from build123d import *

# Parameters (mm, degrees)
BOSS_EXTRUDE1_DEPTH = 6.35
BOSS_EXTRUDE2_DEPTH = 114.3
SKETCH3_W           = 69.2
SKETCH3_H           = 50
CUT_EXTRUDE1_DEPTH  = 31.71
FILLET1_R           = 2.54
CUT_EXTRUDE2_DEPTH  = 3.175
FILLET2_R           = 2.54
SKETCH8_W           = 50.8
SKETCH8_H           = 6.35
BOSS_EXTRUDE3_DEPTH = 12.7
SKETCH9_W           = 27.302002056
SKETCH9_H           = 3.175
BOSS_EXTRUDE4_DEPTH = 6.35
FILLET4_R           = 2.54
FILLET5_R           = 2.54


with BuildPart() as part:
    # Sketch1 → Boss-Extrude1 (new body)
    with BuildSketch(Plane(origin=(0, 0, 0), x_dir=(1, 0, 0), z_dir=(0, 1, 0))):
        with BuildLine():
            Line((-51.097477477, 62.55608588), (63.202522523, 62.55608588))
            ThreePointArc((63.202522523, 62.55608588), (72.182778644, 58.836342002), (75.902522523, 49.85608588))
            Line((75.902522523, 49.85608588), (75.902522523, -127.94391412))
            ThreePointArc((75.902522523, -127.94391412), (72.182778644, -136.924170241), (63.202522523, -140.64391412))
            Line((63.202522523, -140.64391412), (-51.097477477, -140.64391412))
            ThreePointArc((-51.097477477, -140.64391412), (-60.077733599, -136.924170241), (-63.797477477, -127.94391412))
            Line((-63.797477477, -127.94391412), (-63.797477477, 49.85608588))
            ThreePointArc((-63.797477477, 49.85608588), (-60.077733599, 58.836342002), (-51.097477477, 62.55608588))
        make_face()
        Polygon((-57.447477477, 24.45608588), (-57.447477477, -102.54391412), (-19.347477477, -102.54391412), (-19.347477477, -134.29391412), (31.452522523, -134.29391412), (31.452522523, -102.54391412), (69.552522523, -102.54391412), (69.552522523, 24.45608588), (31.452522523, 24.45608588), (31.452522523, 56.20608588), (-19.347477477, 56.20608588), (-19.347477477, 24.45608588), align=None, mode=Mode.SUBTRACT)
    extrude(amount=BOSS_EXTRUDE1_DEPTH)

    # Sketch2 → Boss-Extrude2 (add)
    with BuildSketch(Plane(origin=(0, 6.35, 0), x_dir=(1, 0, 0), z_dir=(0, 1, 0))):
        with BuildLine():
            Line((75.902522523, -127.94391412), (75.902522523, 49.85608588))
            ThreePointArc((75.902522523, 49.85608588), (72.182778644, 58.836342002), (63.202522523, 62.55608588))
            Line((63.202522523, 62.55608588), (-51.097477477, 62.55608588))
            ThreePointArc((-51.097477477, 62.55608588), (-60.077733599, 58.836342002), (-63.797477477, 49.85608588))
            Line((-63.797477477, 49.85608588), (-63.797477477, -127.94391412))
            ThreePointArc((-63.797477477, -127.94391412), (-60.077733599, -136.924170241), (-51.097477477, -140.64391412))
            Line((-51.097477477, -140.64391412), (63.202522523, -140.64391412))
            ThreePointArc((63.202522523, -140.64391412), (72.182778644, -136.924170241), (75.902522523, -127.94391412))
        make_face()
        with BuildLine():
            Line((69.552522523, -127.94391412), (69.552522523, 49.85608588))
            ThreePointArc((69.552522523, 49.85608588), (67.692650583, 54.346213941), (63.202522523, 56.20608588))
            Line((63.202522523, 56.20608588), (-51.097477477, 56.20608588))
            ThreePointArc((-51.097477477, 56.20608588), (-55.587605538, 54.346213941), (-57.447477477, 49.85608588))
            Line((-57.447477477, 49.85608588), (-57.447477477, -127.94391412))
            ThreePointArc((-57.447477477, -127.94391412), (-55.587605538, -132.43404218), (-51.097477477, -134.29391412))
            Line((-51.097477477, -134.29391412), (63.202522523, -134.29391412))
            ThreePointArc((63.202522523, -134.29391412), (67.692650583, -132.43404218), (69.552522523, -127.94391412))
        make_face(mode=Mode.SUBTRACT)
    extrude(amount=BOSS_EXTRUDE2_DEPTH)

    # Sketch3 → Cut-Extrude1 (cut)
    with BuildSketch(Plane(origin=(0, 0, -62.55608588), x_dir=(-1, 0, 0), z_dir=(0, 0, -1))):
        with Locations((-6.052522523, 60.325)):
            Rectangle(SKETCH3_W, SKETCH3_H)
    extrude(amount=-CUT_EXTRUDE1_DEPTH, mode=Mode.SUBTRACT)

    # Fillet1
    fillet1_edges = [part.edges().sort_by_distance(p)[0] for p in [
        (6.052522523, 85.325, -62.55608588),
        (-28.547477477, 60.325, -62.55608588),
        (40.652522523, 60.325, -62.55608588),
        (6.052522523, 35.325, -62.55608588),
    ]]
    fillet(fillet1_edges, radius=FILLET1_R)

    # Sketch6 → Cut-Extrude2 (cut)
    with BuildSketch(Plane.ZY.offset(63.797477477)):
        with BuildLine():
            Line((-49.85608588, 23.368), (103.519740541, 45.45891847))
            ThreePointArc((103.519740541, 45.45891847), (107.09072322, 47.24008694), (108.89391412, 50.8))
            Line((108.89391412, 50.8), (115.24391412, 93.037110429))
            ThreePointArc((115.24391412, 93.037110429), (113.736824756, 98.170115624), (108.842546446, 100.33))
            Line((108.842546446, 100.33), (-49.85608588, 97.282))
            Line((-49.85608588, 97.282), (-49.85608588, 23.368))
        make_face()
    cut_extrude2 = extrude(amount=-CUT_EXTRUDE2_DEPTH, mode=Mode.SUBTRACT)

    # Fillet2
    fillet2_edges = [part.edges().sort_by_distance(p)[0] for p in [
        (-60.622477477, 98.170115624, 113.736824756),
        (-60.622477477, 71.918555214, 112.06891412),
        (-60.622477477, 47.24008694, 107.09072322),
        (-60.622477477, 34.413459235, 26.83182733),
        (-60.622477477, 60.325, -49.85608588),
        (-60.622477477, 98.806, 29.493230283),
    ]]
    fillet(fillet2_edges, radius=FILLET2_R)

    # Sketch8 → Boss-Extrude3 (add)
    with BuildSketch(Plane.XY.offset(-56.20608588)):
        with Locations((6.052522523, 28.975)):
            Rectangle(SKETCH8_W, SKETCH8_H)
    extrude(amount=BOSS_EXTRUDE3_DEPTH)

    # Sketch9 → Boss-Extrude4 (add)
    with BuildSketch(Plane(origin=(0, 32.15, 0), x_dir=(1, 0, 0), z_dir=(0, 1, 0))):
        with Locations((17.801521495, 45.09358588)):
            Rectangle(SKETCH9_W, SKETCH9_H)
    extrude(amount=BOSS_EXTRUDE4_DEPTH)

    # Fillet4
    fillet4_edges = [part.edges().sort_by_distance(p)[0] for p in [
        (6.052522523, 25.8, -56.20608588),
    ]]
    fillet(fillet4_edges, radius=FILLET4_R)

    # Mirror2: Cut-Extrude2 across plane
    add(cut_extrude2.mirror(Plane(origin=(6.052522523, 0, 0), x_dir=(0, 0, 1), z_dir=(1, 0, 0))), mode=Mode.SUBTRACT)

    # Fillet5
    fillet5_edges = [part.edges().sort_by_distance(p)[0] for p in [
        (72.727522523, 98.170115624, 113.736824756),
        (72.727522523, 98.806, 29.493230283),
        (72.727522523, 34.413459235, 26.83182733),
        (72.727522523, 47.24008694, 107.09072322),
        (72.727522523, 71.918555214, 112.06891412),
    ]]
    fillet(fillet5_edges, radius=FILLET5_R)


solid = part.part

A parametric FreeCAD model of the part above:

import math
import FreeCAD as App
import Part
import Sketcher

V = App.Vector
Q = App.Units.Quantity


def edges_at(feature, points):
    """Names of the edges that pass closest to the given points."""
    edges = feature.Shape.Edges
    near = lambda p: min(range(len(edges)), key=lambda i: edges[i].distToShape(Part.Vertex(*p))[0])
    return sorted({f"Edge{near(p) + 1}" for p in points})

doc = App.newDocument("Part")
body = doc.addObject("PartDesign::Body", "Body")

# Sketch on XZ plane
sketch1 = body.newObject("Sketcher::SketchObject", "Sketch")
sketch1.AttachmentSupport = (doc.getObject("XZ_Plane"), [""])
sketch1.MapMode = "FlatFace"
sketch1.addGeometry([
    Part.LineSegment(V(63.202523, -62.556086, 0), V(-51.097477, -62.556086, 0)),  # 0
    Part.ArcOfCircle(Part.Circle(V(-51.097477, -49.856086, 0), V(0, 0, 1), 12.7), math.radians(180), math.radians(270)),  # 1
    Part.LineSegment(V(-63.797477, -49.856086, 0), V(-63.797477, 127.943914, 0)),  # 2
    Part.ArcOfCircle(Part.Circle(V(-51.097477, 127.943914, 0), V(0, 0, 1), 12.7), math.radians(90), math.radians(180)),  # 3
    Part.LineSegment(V(-51.097477, 140.643914, 0), V(63.202523, 140.643914, 0)),  # 4
    Part.ArcOfCircle(Part.Circle(V(63.202523, 127.943914, 0), V(0, 0, 1), 12.7), math.radians(0), math.radians(90)),  # 5
    Part.LineSegment(V(75.902523, 127.943914, 0), V(75.902523, -49.856086, 0)),  # 6
    Part.ArcOfCircle(Part.Circle(V(63.202523, -49.856086, 0), V(0, 0, 1), 12.7), math.radians(-90), math.radians(0)),  # 7
    Part.LineSegment(V(-57.447477, -24.456086, 0), V(-19.347477, -24.456086, 0)),  # 8
    Part.LineSegment(V(-19.347477, -24.456086, 0), V(-19.347477, -56.206086, 0)),  # 9
    Part.LineSegment(V(-19.347477, -56.206086, 0), V(31.452523, -56.206086, 0)),  # 10
    Part.LineSegment(V(31.452523, -56.206086, 0), V(31.452523, -24.456086, 0)),  # 11
    Part.LineSegment(V(31.452523, -24.456086, 0), V(69.552523, -24.456086, 0)),  # 12
    Part.LineSegment(V(69.552523, -24.456086, 0), V(69.552523, 102.543914, 0)),  # 13
    Part.LineSegment(V(69.552523, 102.543914, 0), V(31.452523, 102.543914, 0)),  # 14
    Part.LineSegment(V(31.452523, 102.543914, 0), V(31.452523, 134.293914, 0)),  # 15
    Part.LineSegment(V(31.452523, 134.293914, 0), V(-19.347477, 134.293914, 0)),  # 16
    Part.LineSegment(V(-19.347477, 134.293914, 0), V(-19.347477, 102.543914, 0)),  # 17
    Part.LineSegment(V(-19.347477, 102.543914, 0), V(-57.447477, 102.543914, 0)),  # 18
    Part.LineSegment(V(-57.447477, 102.543914, 0), V(-57.447477, -24.456086, 0)),  # 19
], False)
sketch1.addConstraint([
    Sketcher.Constraint("Tangent", 0, 2, 1, 2),
    Sketcher.Constraint("Tangent", 1, 1, 2, 1),
    Sketcher.Constraint("Tangent", 2, 2, 3, 2),
    Sketcher.Constraint("Tangent", 3, 1, 4, 1),
    Sketcher.Constraint("Tangent", 4, 2, 5, 2),
    Sketcher.Constraint("Tangent", 5, 1, 6, 1),
    Sketcher.Constraint("Tangent", 6, 2, 7, 2),
    Sketcher.Constraint("Tangent", 7, 1, 0, 1),
    Sketcher.Constraint("Coincident", 8, 2, 9, 1),
    Sketcher.Constraint("Coincident", 9, 2, 10, 1),
    Sketcher.Constraint("Coincident", 10, 2, 11, 1),
    Sketcher.Constraint("Coincident", 11, 2, 12, 1),
    Sketcher.Constraint("Coincident", 12, 2, 13, 1),
    Sketcher.Constraint("Coincident", 13, 2, 14, 1),
    Sketcher.Constraint("Coincident", 14, 2, 15, 1),
    Sketcher.Constraint("Coincident", 15, 2, 16, 1),
    Sketcher.Constraint("Coincident", 16, 2, 17, 1),
    Sketcher.Constraint("Coincident", 17, 2, 18, 1),
    Sketcher.Constraint("Coincident", 18, 2, 19, 1),
    Sketcher.Constraint("Coincident", 19, 2, 8, 1),
    Sketcher.Constraint("Horizontal", 0),
    Sketcher.Constraint("Vertical", 2),
    Sketcher.Constraint("Horizontal", 4),
    Sketcher.Constraint("Vertical", 6),
    Sketcher.Constraint("Horizontal", 8),
    Sketcher.Constraint("Vertical", 9),
    Sketcher.Constraint("Horizontal", 10),
    Sketcher.Constraint("Vertical", 11),
    Sketcher.Constraint("Horizontal", 12),
    Sketcher.Constraint("Vertical", 13),
    Sketcher.Constraint("Horizontal", 14),
    Sketcher.Constraint("Vertical", 15),
    Sketcher.Constraint("Horizontal", 16),
    Sketcher.Constraint("Vertical", 17),
    Sketcher.Constraint("Horizontal", 18),
    Sketcher.Constraint("Vertical", 19),
    Sketcher.Constraint("Equal", 1, 3),
    Sketcher.Constraint("Equal", 3, 5),
    Sketcher.Constraint("Equal", 5, 7),
    Sketcher.Constraint("Horizontal", 8, 2, 11, 2),
    Sketcher.Constraint("Horizontal", 14, 2, 17, 2),
    Sketcher.Constraint("Vertical", 11, 2, 14, 2),
    Sketcher.Constraint("Vertical", 9, 2, 16, 2),
    Sketcher.Constraint("Equal", 8, 12),
    Sketcher.Constraint("Equal", 11, 15),
    Sketcher.Constraint("Radius", 1, Q("0.5 in")),
    Sketcher.Constraint("DistanceX", 10, 1, 10, 2, Q("2 in")),
    Sketcher.Constraint("DistanceY", 2, 1, 2, 2, Q("7 in")),
    Sketcher.Constraint("DistanceY", 13, 1, 13, 2, Q("5 in")),
    Sketcher.Constraint("DistanceX", 0, 2, 0, 1, Q("4.5 in")),
    Sketcher.Constraint("DistanceX", 8, 1, 8, 2, Q("1.5 in")),
    Sketcher.Constraint("DistanceY", 1, 3, 8, 2, Q("1 in")),
    Sketcher.Constraint("DistanceY", 9, 2, 9, 1, Q("1.25 in")),
    Sketcher.Constraint("DistanceX", 1, 3, 8, 2, Q("1.25 in")),
    Sketcher.Constraint("DistanceX", 1, 3, -1, 1, Q("51.097477 mm")),
    Sketcher.Constraint("DistanceY", 1, 3, -1, 1, Q("49.856086 mm")),
])
pad1 = body.newObject("PartDesign::Pad", "Pad")
pad1.Profile = sketch1
pad1.Length = Q("0.25 in")
pad1.Reversed = True

# Sketch on XZ plane
sketch2 = body.newObject("Sketcher::SketchObject", "Sketch001")
sketch2.AttachmentSupport = (doc.getObject("XZ_Plane"), [""])
sketch2.MapMode = "FlatFace"
sketch2.AttachmentOffset = App.Placement(V(0, 0, -0.25 * 25.4), App.Rotation())
sketch2.addGeometry([
    Part.LineSegment(V(75.902523, 127.943914, 0), V(75.902523, -49.856086, 0)),  # 0
    Part.ArcOfCircle(Part.Circle(V(63.202523, -49.856086, 0), V(0, 0, 1), 12.7), math.radians(-90), math.radians(0)),  # 1
    Part.LineSegment(V(63.202523, -62.556086, 0), V(-51.097477, -62.556086, 0)),  # 2
    Part.ArcOfCircle(Part.Circle(V(-51.097477, -49.856086, 0), V(0, 0, 1), 12.7), math.radians(180), math.radians(270)),  # 3
    Part.LineSegment(V(-63.797477, -49.856086, 0), V(-63.797477, 127.943914, 0)),  # 4
    Part.ArcOfCircle(Part.Circle(V(-51.097477, 127.943914, 0), V(0, 0, 1), 12.7), math.radians(90), math.radians(180)),  # 5
    Part.LineSegment(V(-51.097477, 140.643914, 0), V(63.202523, 140.643914, 0)),  # 6
    Part.ArcOfCircle(Part.Circle(V(63.202523, 127.943914, 0), V(0, 0, 1), 12.7), math.radians(0), math.radians(90)),  # 7
    Part.LineSegment(V(69.552523, -49.856086, 0), V(69.552523, 127.943914, 0)),  # 8
    Part.ArcOfCircle(Part.Circle(V(63.202523, 127.943914, 0), V(0, 0, 1), 6.35), math.radians(0), math.radians(90)),  # 9
    Part.LineSegment(V(63.202523, 134.293914, 0), V(-51.097477, 134.293914, 0)),  # 10
    Part.ArcOfCircle(Part.Circle(V(-51.097477, 127.943914, 0), V(0, 0, 1), 6.35), math.radians(90), math.radians(180)),  # 11
    Part.LineSegment(V(-57.447477, 127.943914, 0), V(-57.447477, -49.856086, 0)),  # 12
    Part.ArcOfCircle(Part.Circle(V(-51.097477, -49.856086, 0), V(0, 0, 1), 6.35), math.radians(180), math.radians(270)),  # 13
    Part.LineSegment(V(-51.097477, -56.206086, 0), V(63.202523, -56.206086, 0)),  # 14
    Part.ArcOfCircle(Part.Circle(V(63.202523, -49.856086, 0), V(0, 0, 1), 6.35), math.radians(-90), math.radians(0)),  # 15
], False)
sketch2.addConstraint([
    Sketcher.Constraint("Tangent", 0, 2, 1, 2),
    Sketcher.Constraint("Tangent", 1, 1, 2, 1),
    Sketcher.Constraint("Tangent", 2, 2, 3, 2),
    Sketcher.Constraint("Tangent", 3, 1, 4, 1),
    Sketcher.Constraint("Tangent", 4, 2, 5, 2),
    Sketcher.Constraint("Tangent", 5, 1, 6, 1),
    Sketcher.Constraint("Tangent", 6, 2, 7, 2),
    Sketcher.Constraint("Tangent", 7, 1, 0, 1),
    Sketcher.Constraint("Tangent", 8, 2, 9, 1),
    Sketcher.Constraint("Tangent", 9, 2, 10, 1),
    Sketcher.Constraint("Tangent", 10, 2, 11, 1),
    Sketcher.Constraint("Tangent", 11, 2, 12, 1),
    Sketcher.Constraint("Tangent", 12, 2, 13, 1),
    Sketcher.Constraint("Tangent", 13, 2, 14, 1),
    Sketcher.Constraint("Tangent", 14, 2, 15, 1),
    Sketcher.Constraint("Tangent", 15, 2, 8, 1),
    Sketcher.Constraint("Vertical", 0),
    Sketcher.Constraint("Horizontal", 2),
    Sketcher.Constraint("Vertical", 4),
    Sketcher.Constraint("Horizontal", 6),
    Sketcher.Constraint("Vertical", 8),
    Sketcher.Constraint("Horizontal", 10),
    Sketcher.Constraint("Vertical", 12),
    Sketcher.Constraint("Horizontal", 14),
    Sketcher.Constraint("Coincident", 9, 3, 7, 3),
    Sketcher.Constraint("Coincident", 11, 3, 5, 3),
    Sketcher.Constraint("Coincident", 13, 3, 3, 3),
    Sketcher.Constraint("Equal", 1, 3),
    Sketcher.Constraint("Equal", 3, 5),
    Sketcher.Constraint("Equal", 5, 7),
    Sketcher.Constraint("Equal", 13, 15),
    Sketcher.Constraint("Radius", 1, Q("0.5 in")),
    Sketcher.Constraint("DistanceY", 0, 2, 0, 1, Q("7 in")),
    Sketcher.Constraint("Radius", 9, Q("0.25 in")),
    Sketcher.Constraint("DistanceX", 2, 2, 2, 1, Q("4.5 in")),
    Sketcher.Constraint("DistanceX", -1, 1, 1, 3, Q("63.202523 mm")),
    Sketcher.Constraint("DistanceY", 1, 3, -1, 1, Q("49.856086 mm")),
])
pad2 = body.newObject("PartDesign::Pad", "Pad001")
pad2.Profile = sketch2
pad2.Length = Q("4.5 in")
pad2.Reversed = True

# Sketch on XY plane
sketch3 = body.newObject("Sketcher::SketchObject", "Sketch002")
sketch3.AttachmentSupport = (doc.getObject("XY_Plane"), [""])
sketch3.MapMode = "FlatFace"
sketch3.AttachmentOffset = App.Placement(V(0, 0, -62.556086), App.Rotation())
sketch3.addGeometry([
    Part.LineSegment(V(40.652523, 85.325, 0), V(40.652523, 35.325, 0)),
    Part.LineSegment(V(40.652523, 35.325, 0), V(-28.547477, 35.325, 0)),
    Part.LineSegment(V(-28.547477, 35.325, 0), V(-28.547477, 85.325, 0)),
    Part.LineSegment(V(-28.547477, 85.325, 0), V(40.652523, 85.325, 0)),
], False)
sketch3.addConstraint([
    Sketcher.Constraint("Coincident", 0, 2, 1, 1),
    Sketcher.Constraint("Coincident", 1, 2, 2, 1),
    Sketcher.Constraint("Coincident", 2, 2, 3, 1),
    Sketcher.Constraint("Coincident", 3, 2, 0, 1),
    Sketcher.Constraint("Vertical", 0),
    Sketcher.Constraint("Horizontal", 1),
    Sketcher.Constraint("Vertical", 2),
    Sketcher.Constraint("Horizontal", 3),
    Sketcher.Constraint("DistanceX", 1, 2, 1, 1, Q("69.2 mm")),
    Sketcher.Constraint("DistanceY", 0, 2, 0, 1, Q("50 mm")),
    Sketcher.Constraint("DistanceY", -1, 1, 0, 2, Q("35.325 mm")),
    Sketcher.Constraint("DistanceX", -1, 1, 0, 2, Q("40.652523 mm")),
])
pocket1 = body.newObject("PartDesign::Pocket", "Pocket")
pocket1.Profile = sketch3
pocket1.Length = 31.71
pocket1.Reversed = True
doc.recompute()

fillet = body.newObject("PartDesign::Fillet", "Fillet")
fillet.Base = (pocket1, edges_at(pocket1, [
    (6.053, 85.325, -62.556),
    (-28.547, 60.325, -62.556),
    (40.653, 60.325, -62.556),
    (6.053, 35.325, -62.556),
]))
fillet.Radius = Q("0.1 in")

# Sketch on YZ plane
sketch4 = body.newObject("Sketcher::SketchObject", "Sketch003")
sketch4.AttachmentSupport = (doc.getObject("YZ_Plane"), [""])
sketch4.MapMode = "FlatFace"
sketch4.AttachmentOffset = App.Placement(V(0, 0, -63.797477), App.Rotation())
sketch4.addGeometry([
    Part.LineSegment(V(23.368, -49.856086, 0), V(45.458918, 103.519741, 0)),  # 0
    Part.ArcOfCircle(Part.Circle(V(51.74406, 102.614483, 0), V(0, 0, 1), 6.35), math.radians(98.549913), math.radians(171.80398)),  # 1
    Part.LineSegment(V(50.8, 108.893914, 0), V(93.03711, 115.243914, 0)),  # 2
    Part.ArcOfCircle(Part.Circle(V(93.981171, 108.964483, 0), V(0, 0, 1), 6.35), math.radians(-1.1003), math.radians(98.549913)),  # 3
    Part.LineSegment(V(100.33, 108.842546, 0), V(97.282, -49.856086, 0)),  # 4
    Part.LineSegment(V(97.282, -49.856086, 0), V(23.368, -49.856086, 0)),  # 5
], False)
sketch4.addConstraint([
    Sketcher.Constraint("Tangent", 0, 2, 1, 2),
    Sketcher.Constraint("Tangent", 1, 1, 2, 1),
    Sketcher.Constraint("Tangent", 2, 2, 3, 2),
    Sketcher.Constraint("Tangent", 3, 1, 4, 1),
    Sketcher.Constraint("Coincident", 4, 2, 5, 1),
    Sketcher.Constraint("Coincident", 5, 2, 0, 1),
    Sketcher.Constraint("Horizontal", 5),
    Sketcher.Constraint("Equal", 1, 3),
    Sketcher.Constraint("Radius", 1, Q("0.25 in")),
    Sketcher.Constraint("DistanceX", -1, 1, 1, 1, Q("2 in")),
    Sketcher.Constraint("DistanceX", 5, 2, 5, 1, Q("2.91 in")),
    Sketcher.Constraint("DistanceY", 4, 2, 2, 2, Q("6.5 in")),
    Sketcher.Constraint("DistanceX", -1, 1, 3, 1, Q("3.95 in")),
    Sketcher.Constraint("DistanceX", -1, 1, 4, 2, Q("3.83 in")),
    Sketcher.Constraint("DistanceY", 1, 3, 3, 3, Q("0.25 in")),
    Sketcher.Constraint("DistanceY", -1, 1, 0, 2, Q("103.519741 mm")),
])
pocket2 = body.newObject("PartDesign::Pocket", "Pocket001")
pocket2.Profile = sketch4
pocket2.Length = Q("0.125 in")
pocket2.Reversed = True
doc.recompute()

fillet2 = body.newObject("PartDesign::Fillet", "Fillet001")
fillet2.Base = (pocket2, edges_at(pocket2, [
    (-60.622, 98.17, 113.737),
    (-60.622, 71.919, 112.069),
    (-60.622, 47.24, 107.091),
    (-60.622, 34.413, 26.832),
    (-60.622, 60.325, -49.856),
    (-60.622, 98.806, 29.493),
]))
fillet2.Radius = Q("0.1 in")

# Sketch on XY plane
sketch5 = body.newObject("Sketcher::SketchObject", "Sketch004")
sketch5.AttachmentSupport = (doc.getObject("XY_Plane"), [""])
sketch5.MapMode = "FlatFace"
sketch5.AttachmentOffset = App.Placement(V(0, 0, -56.206086), App.Rotation())
sketch5.addGeometry([
    Part.LineSegment(V(-19.347477, 32.15, 0), V(-19.347477, 25.8, 0)),
    Part.LineSegment(V(-19.347477, 25.8, 0), V(31.452523, 25.8, 0)),
    Part.LineSegment(V(31.452523, 25.8, 0), V(31.452523, 32.15, 0)),
    Part.LineSegment(V(31.452523, 32.15, 0), V(-19.347477, 32.15, 0)),
], False)
sketch5.addConstraint([
    Sketcher.Constraint("Coincident", 0, 2, 1, 1),
    Sketcher.Constraint("Coincident", 1, 2, 2, 1),
    Sketcher.Constraint("Coincident", 2, 2, 3, 1),
    Sketcher.Constraint("Coincident", 3, 2, 0, 1),
    Sketcher.Constraint("Vertical", 0),
    Sketcher.Constraint("Horizontal", 1),
    Sketcher.Constraint("Vertical", 2),
    Sketcher.Constraint("Horizontal", 3),
    Sketcher.Constraint("DistanceX", 1, 1, 1, 2, Q("2 in")),
    Sketcher.Constraint("DistanceY", 0, 2, 0, 1, Q("0.25 in")),
    Sketcher.Constraint("DistanceY", -1, 1, 0, 2, Q("25.8 mm")),
    Sketcher.Constraint("DistanceX", 0, 2, -1, 1, Q("19.347477 mm")),
])
pad3 = body.newObject("PartDesign::Pad", "Pad002")
pad3.Profile = sketch5
pad3.Length = Q("0.5 in")

# Sketch on XZ plane
sketch6 = body.newObject("Sketcher::SketchObject", "Sketch005")
sketch6.AttachmentSupport = (doc.getObject("XZ_Plane"), [""])
sketch6.MapMode = "FlatFace"
sketch6.AttachmentOffset = App.Placement(V(0, 0, -32.15), App.Rotation())
sketch6.addGeometry([
    Part.LineSegment(V(4.15052, -46.681086, 0), V(4.15052, -43.506086, 0)),
    Part.LineSegment(V(4.15052, -43.506086, 0), V(31.452523, -43.506086, 0)),
    Part.LineSegment(V(31.452523, -43.506086, 0), V(31.452523, -46.681086, 0)),
    Part.LineSegment(V(31.452523, -46.681086, 0), V(4.15052, -46.681086, 0)),
], False)
sketch6.addConstraint([
    Sketcher.Constraint("Coincident", 0, 2, 1, 1),
    Sketcher.Constraint("Coincident", 1, 2, 2, 1),
    Sketcher.Constraint("Coincident", 2, 2, 3, 1),
    Sketcher.Constraint("Coincident", 3, 2, 0, 1),
    Sketcher.Constraint("Vertical", 0),
    Sketcher.Constraint("Horizontal", 1),
    Sketcher.Constraint("Vertical", 2),
    Sketcher.Constraint("Horizontal", 3),
    Sketcher.Constraint("DistanceY", 0, 1, 0, 2, Q("0.125 in")),
    Sketcher.Constraint("DistanceX", 1, 1, 1, 2, Q("27.302002 mm")),
    Sketcher.Constraint("DistanceX", -1, 1, 0, 2, Q("4.15052 mm")),
    Sketcher.Constraint("DistanceY", 0, 2, -1, 1, Q("43.506086 mm")),
])
pad4 = body.newObject("PartDesign::Pad", "Pad003")
pad4.Profile = sketch6
pad4.Length = Q("0.25 in")
pad4.Reversed = True
doc.recompute()

fillet3 = body.newObject("PartDesign::Fillet", "Fillet002")
fillet3.Base = (pad4, edges_at(pad4, [(6.053, 25.8, -56.206)]))
fillet3.Radius = Q("0.1 in")
doc.recompute()

datumplane = body.newObject("PartDesign::Plane", "DatumPlane")
datumplane.AttachmentSupport = (doc.getObject("YZ_Plane"), [""])
datumplane.MapMode = "FlatFace"
datumplane.AttachmentOffset = App.Placement(V(0, 0, 6.052523), App.Rotation())
mirrored = body.newObject("PartDesign::Mirrored", "Mirrored")
mirrored.Originals = [pocket2]
mirrored.MirrorPlane = (datumplane, [""])
body.Tip = mirrored
doc.recompute()

fillet4 = body.newObject("PartDesign::Fillet", "Fillet003")
fillet4.Base = (mirrored, edges_at(mirrored, [
    (72.728, 98.17, 113.737),
    (72.728, 98.806, 29.493),
    (72.728, 34.413, 26.832),
    (72.728, 47.24, 107.091),
    (72.728, 71.919, 112.069),
]))
fillet4.Radius = Q("0.1 in")

doc.recompute()
